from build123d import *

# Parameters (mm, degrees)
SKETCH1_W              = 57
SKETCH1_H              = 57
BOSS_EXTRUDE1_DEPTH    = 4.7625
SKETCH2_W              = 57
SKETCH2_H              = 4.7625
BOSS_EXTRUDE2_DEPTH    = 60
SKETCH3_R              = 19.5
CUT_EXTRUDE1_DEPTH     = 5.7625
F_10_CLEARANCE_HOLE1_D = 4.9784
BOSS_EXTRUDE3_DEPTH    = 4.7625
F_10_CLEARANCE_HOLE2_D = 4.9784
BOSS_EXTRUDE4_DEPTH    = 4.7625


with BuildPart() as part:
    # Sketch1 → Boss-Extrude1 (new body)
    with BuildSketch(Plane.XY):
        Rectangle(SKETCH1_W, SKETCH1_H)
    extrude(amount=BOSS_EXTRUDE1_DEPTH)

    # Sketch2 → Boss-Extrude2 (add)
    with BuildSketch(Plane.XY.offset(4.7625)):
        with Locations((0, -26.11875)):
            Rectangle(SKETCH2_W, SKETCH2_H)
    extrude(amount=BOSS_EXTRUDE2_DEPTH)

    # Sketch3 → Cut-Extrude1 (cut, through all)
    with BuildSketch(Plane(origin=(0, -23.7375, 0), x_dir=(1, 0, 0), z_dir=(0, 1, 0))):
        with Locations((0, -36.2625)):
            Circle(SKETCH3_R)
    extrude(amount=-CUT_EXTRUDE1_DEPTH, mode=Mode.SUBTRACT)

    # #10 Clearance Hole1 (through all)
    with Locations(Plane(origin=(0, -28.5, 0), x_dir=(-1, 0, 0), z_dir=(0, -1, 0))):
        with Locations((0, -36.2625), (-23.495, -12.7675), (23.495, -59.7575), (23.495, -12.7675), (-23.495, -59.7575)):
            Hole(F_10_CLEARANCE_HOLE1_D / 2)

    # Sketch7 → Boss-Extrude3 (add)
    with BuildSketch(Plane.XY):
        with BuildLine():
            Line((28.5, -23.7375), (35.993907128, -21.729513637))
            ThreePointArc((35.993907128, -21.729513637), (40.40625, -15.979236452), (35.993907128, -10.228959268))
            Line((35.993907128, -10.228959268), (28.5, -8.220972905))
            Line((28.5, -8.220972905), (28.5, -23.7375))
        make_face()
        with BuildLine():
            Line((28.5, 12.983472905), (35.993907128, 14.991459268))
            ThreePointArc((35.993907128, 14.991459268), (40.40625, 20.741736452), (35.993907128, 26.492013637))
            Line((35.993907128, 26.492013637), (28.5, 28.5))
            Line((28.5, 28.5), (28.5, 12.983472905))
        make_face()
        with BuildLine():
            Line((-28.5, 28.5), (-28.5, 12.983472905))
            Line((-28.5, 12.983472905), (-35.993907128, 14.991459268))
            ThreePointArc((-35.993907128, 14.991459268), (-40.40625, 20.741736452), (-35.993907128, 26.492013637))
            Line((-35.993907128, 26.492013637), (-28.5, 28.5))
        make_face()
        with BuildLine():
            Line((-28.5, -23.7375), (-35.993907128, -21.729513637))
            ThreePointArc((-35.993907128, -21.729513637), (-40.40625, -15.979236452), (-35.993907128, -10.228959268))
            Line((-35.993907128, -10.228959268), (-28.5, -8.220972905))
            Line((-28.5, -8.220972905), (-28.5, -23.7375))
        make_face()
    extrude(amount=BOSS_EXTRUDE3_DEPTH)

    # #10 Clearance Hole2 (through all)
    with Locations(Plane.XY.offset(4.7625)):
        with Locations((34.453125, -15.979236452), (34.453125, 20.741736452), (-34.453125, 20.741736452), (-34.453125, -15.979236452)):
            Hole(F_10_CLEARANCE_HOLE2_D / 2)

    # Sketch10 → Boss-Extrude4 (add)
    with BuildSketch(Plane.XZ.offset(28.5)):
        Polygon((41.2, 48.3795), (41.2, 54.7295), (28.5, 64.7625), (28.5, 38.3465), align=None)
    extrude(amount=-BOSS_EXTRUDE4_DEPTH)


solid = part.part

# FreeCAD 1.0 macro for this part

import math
import FreeCAD as App
import Part
import Sketcher

V = App.Vector
Q = App.Units.Quantity


def add_polygon(sketch, points):
    """Adds a closed chain of lines whose ends are joined by coincident constraints."""
    first, n = sketch.GeometryCount, len(points)
    for a, b in zip(points, points[1:] + points[:1]):
        sketch.addGeometry(Part.LineSegment(App.Vector(*a, 0), App.Vector(*b, 0)), False)
    for i in range(n):
        sketch.addConstraint(Sketcher.Constraint("Coincident", first + i, 2, first + (i + 1) % n, 1))

doc = App.newDocument("Part")
body = doc.addObject("PartDesign::Body", "Body")

sketch1 = body.newObject("Sketcher::SketchObject", "Sketch")
sketch1.AttachmentSupport = (doc.getObject("XY_Plane"), [""])
sketch1.MapMode = "FlatFace"
add_polygon(sketch1, [(-28, 28), (-28, -28), (28, -28), (28, 28)])
sketch1.addConstraint([
    Sketcher.Constraint("Vertical", 0),
    Sketcher.Constraint("Horizontal", 1),
    Sketcher.Constraint("Vertical", 2),
    Sketcher.Constraint("Horizontal", 3),
    Sketcher.Constraint("Symmetric", 0, 2, 2, 2, -1, 1),
    Sketcher.Constraint("Equal", 3, 0),
    Sketcher.Constraint("DistanceX", 1, 1, 1, 2, 57.0),
])
pad1 = body.newObject("PartDesign::Pad", "Pad")
pad1.Profile = sketch1
pad1.Length = Q("0.1875 in")

sketch2 = body.newObject("Sketcher::SketchObject", "Sketch001")
sketch2.AttachmentSupport = (doc.getObject("XY_Plane"), [""])
sketch2.MapMode = "FlatFace"
sketch2.AttachmentOffset = App.Placement(V(0, 0, 0.1875 * 25.4), App.Rotation())
add_polygon(sketch2, [(-28.5, -23.7), (-28.5, -28.5), (28.5, -28.5), (28.5, -23.7)])
sketch2.addConstraint([
    Sketcher.Constraint("Vertical", 0),
    Sketcher.Constraint("Horizontal", 1),
    Sketcher.Constraint("Vertical", 2),
    Sketcher.Constraint("Horizontal", 3),
    Sketcher.Constraint("DistanceY", 0, 2, 0, 1, Q("0.1875 in")),
    Sketcher.Constraint("DistanceX", 1, 1, 1, 2, 57.0),
    Sketcher.Constraint("DistanceX", 0, 2, -1, 1, 28.5),
    Sketcher.Constraint("DistanceY", 0, 2, -1, 1, 28.5),
])
pad2 = body.newObject("PartDesign::Pad", "Pad001")
pad2.Profile = sketch2
pad2.Length = 60

sketch3 = body.newObject("Sketcher::SketchObject", "Sketch002")
sketch3.AttachmentSupport = (doc.getObject("XZ_Plane"), [""])
sketch3.MapMode = "FlatFace"
sketch3.AttachmentOffset = App.Placement(V(0, 0, 23.7375), App.Rotation())
sketch3.addGeometry(Part.Circle(V(0, 36, 0), V(0, 0, 1), 20), False)
sketch3.addConstraint([
    Sketcher.Constraint("PointOnObject", 0, 3, -2),
    Sketcher.Constraint("Diameter", 0, 39.0),
    Sketcher.Constraint("DistanceY", -1, 1, 0, 3, 36.2625),
])
pocket1 = body.newObject("PartDesign::Pocket", "Pocket")
pocket1.Profile = sketch3
pocket1.Type = "ThroughAll"
pocket1.Reversed = True

sketch4 = body.newObject("Sketcher::SketchObject", "Sketch003")
sketch4.AttachmentSupport = (doc.getObject("XZ_Plane"), [""])
sketch4.MapMode = "FlatFace"
sketch4.AttachmentOffset = App.Placement(V(0, 0, 28.5), App.Rotation())
sketch4.addGeometry([
    Part.Circle(V(0, 36.3, 0), V(0, 0, 1), 2.5),
    Part.Circle(V(23.5, 12.8, 0), V(0, 0, 1), 2.5),
    Part.Circle(V(-23.5, 59.8, 0), V(0, 0, 1), 2.5),
    Part.Circle(V(-23.5, 12.8, 0), V(0, 0, 1), 2.5),
    Part.Circle(V(23.5, 59.8, 0), V(0, 0, 1), 2.5),
], False)
sketch4.addConstraint([
    Sketcher.Constraint("Equal", 0, 1),
    Sketcher.Constraint("Equal", 1, 2),
    Sketcher.Constraint("Equal", 2, 3),
    Sketcher.Constraint("Equal", 3, 4),
    Sketcher.Constraint("Symmetric", 1, 3, 3, 3, -2),
    Sketcher.Constraint("Symmetric", 2, 3, 4, 3, -2),
    Sketcher.Constraint("PointOnObject", 0, 3, -2),
    Sketcher.Constraint("Vertical", 2, 3, 3, 3),
    Sketcher.Constraint("Diameter", 0, Q("0.196 in")),
    Sketcher.Constraint("DistanceX", 2, 3, 1, 3, Q("1.85 in")),
    Sketcher.Constraint("DistanceY", 1, 3, 2, 3, Q("1.85 in")),
    Sketcher.Constraint("DistanceY", 1, 3, 0, 3, Q("0.925 in")),
    Sketcher.Constraint("DistanceY", -1, 1, 0, 3, 36.2625),
])
doc.recompute()
hole = body.newObject("PartDesign::Hole", "Hole")
hole.Profile = sketch4
hole.ThreadType = "None"
hole.Diameter = Q("0.196 in")
hole.DepthType = "ThroughAll"

sketch5 = body.newObject("Sketcher::SketchObject", "Sketch004")
sketch5.AttachmentSupport = (doc.getObject("XY_Plane"), [""])
sketch5.MapMode = "FlatFace"
sketch5.addGeometry([
    Part.LineSegment(V(28, -24, 0), V(36, -22, 0)),
    Part.ArcOfCircle(Part.Circle(V(34, -16, 0), V(0, 0, 1), 6), math.radians(-75), math.radians(75)),
    Part.LineSegment(V(36, -10, 0), V(28, -8, 0)),
    Part.LineSegment(V(28, -8, 0), V(28, -24, 0)),
    Part.LineSegment(V(28, 13, 0), V(36, 15, 0)),
    Part.ArcOfCircle(Part.Circle(V(34, 21, 0), V(0, 0, 1), 6), math.radians(-75), math.radians(75)),
    Part.LineSegment(V(36, 26, 0), V(28, 28, 0)),
    Part.LineSegment(V(28, 28, 0), V(28, 13, 0)),
    Part.LineSegment(V(-28, 13, 0), V(-28, 28, 0)),
    Part.LineSegment(V(-28, 28, 0), V(-36, 26, 0)),
    Part.ArcOfCircle(Part.Circle(V(-34, 21, 0), V(0, 0, 1), 6), math.radians(105), math.radians(255)),
    Part.LineSegment(V(-36, 15, 0), V(-28, 13, 0)),
    Part.LineSegment(V(-36, -22, 0), V(-28, -24, 0)),
    Part.LineSegment(V(-28, -24, 0), V(-28, -8, 0)),
    Part.LineSegment(V(-28, -8, 0), V(-36, -10, 0)),
    Part.ArcOfCircle(Part.Circle(V(-34, -16, 0), V(0, 0, 1), 6), math.radians(105), math.radians(255)),
], False)
sketch5.addConstraint([
    Sketcher.Constraint("Tangent", 0, 2, 1, 1),
    Sketcher.Constraint("Tangent", 1, 2, 2, 1),
    Sketcher.Constraint("Coincident", 2, 2, 3, 1),
    Sketcher.Constraint("Coincident", 3, 2, 0, 1),
    Sketcher.Constraint("Tangent", 4, 2, 5, 1),
    Sketcher.Constraint("Tangent", 5, 2, 6, 1),
    Sketcher.Constraint("Coincident", 6, 2, 7, 1),
    Sketcher.Constraint("Coincident", 7, 2, 4, 1),
    Sketcher.Constraint("Coincident", 8, 2, 9, 1),
    Sketcher.Constraint("Tangent", 9, 2, 10, 1),
    Sketcher.Constraint("Tangent", 10, 2, 11, 1),
    Sketcher.Constraint("Coincident", 11, 2, 8, 1),
    Sketcher.Constraint("Coincident", 12, 2, 13, 1),
    Sketcher.Constraint("Coincident", 13, 2, 14, 1),
    Sketcher.Constraint("Tangent", 14, 2, 15, 1),
    Sketcher.Constraint("Tangent", 15, 2, 12, 1),
    Sketcher.Constraint("Vertical", 3),
    Sketcher.Constraint("Vertical", 7),
    Sketcher.Constraint("Vertical", 8),
    Sketcher.Constraint("Vertical", 13),
    Sketcher.Constraint("Equal", 1, 5),
    Sketcher.Constraint("Equal", 5, 10),
    Sketcher.Constraint("Equal", 10, 15),
    Sketcher.Constraint("Symmetric", 5, 3, 10, 3, -2),
    Sketcher.Constraint("Symmetric", 1, 3, 15, 3, -2),
    Sketcher.Constraint("Symmetric", 6, 2, 8, 2, -2),
    Sketcher.Constraint("Symmetric", 3, 2, 12, 2, -2),
    Sketcher.Constraint("Parallel", 0, 4),
    Sketcher.Constraint("Parallel", 2, 6),
    Sketcher.Constraint("Parallel", 4, 9),
    Sketcher.Constraint("Parallel", 6, 11),
    Sketcher.Constraint("Parallel", 9, 14),
    Sketcher.Constraint("Vertical", 1, 3, 5, 3),
    Sketcher.Constraint("Vertical", 3, 2, 6, 2),
    Sketcher.Constraint("Angle", 0, Q("15 deg")),
    Sketcher.Constraint("Radius", 1, Q("0.234375 in")),
    Sketcher.Constraint("DistanceX", 2, 2, 1, 3, Q("0.234375 in")),
    Sketcher.Constraint("DistanceX", -1, 1, 2, 2, 28.5),
    Sketcher.Constraint("DistanceY", 3, 2, -1, 1, 23.7375),
    Sketcher.Constraint("DistanceY", -1, 1, 6, 2, 28.5),
])
pad3 = body.newObject("PartDesign::Pad", "Pad002")
pad3.Profile = sketch5
pad3.Length = Q("0.1875 in")

sketch6 = body.newObject("Sketcher::SketchObject", "Sketch005")
sketch6.AttachmentSupport = (doc.getObject("XY_Plane"), [""])
sketch6.MapMode = "FlatFace"
sketch6.AttachmentOffset = App.Placement(V(0, 0, 0.1875 * 25.4), App.Rotation())
sketch6.addGeometry([
    Part.Circle(V(34.5, -16, 0), V(0, 0, 1), 2.5),
    Part.Circle(V(34.5, 20.7, 0), V(0, 0, 1), 2.5),
    Part.Circle(V(-34.5, 20.7, 0), V(0, 0, 1), 2.5),
    Part.Circle(V(-34.5, -16, 0), V(0, 0, 1), 2.5),
], False)
sketch6.addConstraint([
    Sketcher.Constraint("Equal", 0, 1),
    Sketcher.Constraint("Equal", 1, 2),
    Sketcher.Constraint("Equal", 2, 3),
    Sketcher.Constraint("Symmetric", 1, 3, 2, 3, -2),
    Sketcher.Constraint("Symmetric", 0, 3, 3, 3, -2),
    Sketcher.Constraint("Vertical", 0, 3, 1, 3),
    Sketcher.Constraint("Diameter", 0, Q("0.196 in")),
    Sketcher.Constraint("DistanceX", 2, 3, 1, 3, 68.90625),
    Sketcher.Constraint("DistanceY", 0, 3, -1, 1, 15.979236),
    Sketcher.Constraint("DistanceY", -1, 1, 1, 3, 20.741736),
])
doc.recompute()
hole2 = body.newObject("PartDesign::Hole", "Hole001")
hole2.Profile = sketch6
hole2.ThreadType = "None"
hole2.Diameter = Q("0.196 in")
hole2.DepthType = "ThroughAll"

sketch7 = body.newObject("Sketcher::SketchObject", "Sketch006")
sketch7.AttachmentSupport = (doc.getObject("XZ_Plane"), [""])
sketch7.MapMode = "FlatFace"
sketch7.AttachmentOffset = App.Placement(V(0, 0, 28.5), App.Rotation())
add_polygon(sketch7, [(41, 48), (41, 55), (28, 65), (28, 38)])
sketch7.addConstraint([
    Sketcher.Constraint("Vertical", 0),
    Sketcher.Constraint("Vertical", 2),
    Sketcher.Constraint("Equal", 1, 3),
    Sketcher.Constraint("DistanceY", 0, 1, 0, 2, Q("0.25 in")),
    Sketcher.Constraint("DistanceY", 2, 2, 2, 1, Q("1.04 in")),
    Sketcher.Constraint("DistanceX", 1, 2, 0, 2, Q("0.5 in")),
    Sketcher.Constraint("DistanceX", -1, 1, 0, 2, 41.2),
    Sketcher.Constraint("DistanceY", -1, 1, 0, 2, 54.7295),
])
pad4 = body.newObject("PartDesign::Pad", "Pad003")
pad4.Profile = sketch7
pad4.Length = Q("0.1875 in")
pad4.Reversed = True

doc.recompute()
